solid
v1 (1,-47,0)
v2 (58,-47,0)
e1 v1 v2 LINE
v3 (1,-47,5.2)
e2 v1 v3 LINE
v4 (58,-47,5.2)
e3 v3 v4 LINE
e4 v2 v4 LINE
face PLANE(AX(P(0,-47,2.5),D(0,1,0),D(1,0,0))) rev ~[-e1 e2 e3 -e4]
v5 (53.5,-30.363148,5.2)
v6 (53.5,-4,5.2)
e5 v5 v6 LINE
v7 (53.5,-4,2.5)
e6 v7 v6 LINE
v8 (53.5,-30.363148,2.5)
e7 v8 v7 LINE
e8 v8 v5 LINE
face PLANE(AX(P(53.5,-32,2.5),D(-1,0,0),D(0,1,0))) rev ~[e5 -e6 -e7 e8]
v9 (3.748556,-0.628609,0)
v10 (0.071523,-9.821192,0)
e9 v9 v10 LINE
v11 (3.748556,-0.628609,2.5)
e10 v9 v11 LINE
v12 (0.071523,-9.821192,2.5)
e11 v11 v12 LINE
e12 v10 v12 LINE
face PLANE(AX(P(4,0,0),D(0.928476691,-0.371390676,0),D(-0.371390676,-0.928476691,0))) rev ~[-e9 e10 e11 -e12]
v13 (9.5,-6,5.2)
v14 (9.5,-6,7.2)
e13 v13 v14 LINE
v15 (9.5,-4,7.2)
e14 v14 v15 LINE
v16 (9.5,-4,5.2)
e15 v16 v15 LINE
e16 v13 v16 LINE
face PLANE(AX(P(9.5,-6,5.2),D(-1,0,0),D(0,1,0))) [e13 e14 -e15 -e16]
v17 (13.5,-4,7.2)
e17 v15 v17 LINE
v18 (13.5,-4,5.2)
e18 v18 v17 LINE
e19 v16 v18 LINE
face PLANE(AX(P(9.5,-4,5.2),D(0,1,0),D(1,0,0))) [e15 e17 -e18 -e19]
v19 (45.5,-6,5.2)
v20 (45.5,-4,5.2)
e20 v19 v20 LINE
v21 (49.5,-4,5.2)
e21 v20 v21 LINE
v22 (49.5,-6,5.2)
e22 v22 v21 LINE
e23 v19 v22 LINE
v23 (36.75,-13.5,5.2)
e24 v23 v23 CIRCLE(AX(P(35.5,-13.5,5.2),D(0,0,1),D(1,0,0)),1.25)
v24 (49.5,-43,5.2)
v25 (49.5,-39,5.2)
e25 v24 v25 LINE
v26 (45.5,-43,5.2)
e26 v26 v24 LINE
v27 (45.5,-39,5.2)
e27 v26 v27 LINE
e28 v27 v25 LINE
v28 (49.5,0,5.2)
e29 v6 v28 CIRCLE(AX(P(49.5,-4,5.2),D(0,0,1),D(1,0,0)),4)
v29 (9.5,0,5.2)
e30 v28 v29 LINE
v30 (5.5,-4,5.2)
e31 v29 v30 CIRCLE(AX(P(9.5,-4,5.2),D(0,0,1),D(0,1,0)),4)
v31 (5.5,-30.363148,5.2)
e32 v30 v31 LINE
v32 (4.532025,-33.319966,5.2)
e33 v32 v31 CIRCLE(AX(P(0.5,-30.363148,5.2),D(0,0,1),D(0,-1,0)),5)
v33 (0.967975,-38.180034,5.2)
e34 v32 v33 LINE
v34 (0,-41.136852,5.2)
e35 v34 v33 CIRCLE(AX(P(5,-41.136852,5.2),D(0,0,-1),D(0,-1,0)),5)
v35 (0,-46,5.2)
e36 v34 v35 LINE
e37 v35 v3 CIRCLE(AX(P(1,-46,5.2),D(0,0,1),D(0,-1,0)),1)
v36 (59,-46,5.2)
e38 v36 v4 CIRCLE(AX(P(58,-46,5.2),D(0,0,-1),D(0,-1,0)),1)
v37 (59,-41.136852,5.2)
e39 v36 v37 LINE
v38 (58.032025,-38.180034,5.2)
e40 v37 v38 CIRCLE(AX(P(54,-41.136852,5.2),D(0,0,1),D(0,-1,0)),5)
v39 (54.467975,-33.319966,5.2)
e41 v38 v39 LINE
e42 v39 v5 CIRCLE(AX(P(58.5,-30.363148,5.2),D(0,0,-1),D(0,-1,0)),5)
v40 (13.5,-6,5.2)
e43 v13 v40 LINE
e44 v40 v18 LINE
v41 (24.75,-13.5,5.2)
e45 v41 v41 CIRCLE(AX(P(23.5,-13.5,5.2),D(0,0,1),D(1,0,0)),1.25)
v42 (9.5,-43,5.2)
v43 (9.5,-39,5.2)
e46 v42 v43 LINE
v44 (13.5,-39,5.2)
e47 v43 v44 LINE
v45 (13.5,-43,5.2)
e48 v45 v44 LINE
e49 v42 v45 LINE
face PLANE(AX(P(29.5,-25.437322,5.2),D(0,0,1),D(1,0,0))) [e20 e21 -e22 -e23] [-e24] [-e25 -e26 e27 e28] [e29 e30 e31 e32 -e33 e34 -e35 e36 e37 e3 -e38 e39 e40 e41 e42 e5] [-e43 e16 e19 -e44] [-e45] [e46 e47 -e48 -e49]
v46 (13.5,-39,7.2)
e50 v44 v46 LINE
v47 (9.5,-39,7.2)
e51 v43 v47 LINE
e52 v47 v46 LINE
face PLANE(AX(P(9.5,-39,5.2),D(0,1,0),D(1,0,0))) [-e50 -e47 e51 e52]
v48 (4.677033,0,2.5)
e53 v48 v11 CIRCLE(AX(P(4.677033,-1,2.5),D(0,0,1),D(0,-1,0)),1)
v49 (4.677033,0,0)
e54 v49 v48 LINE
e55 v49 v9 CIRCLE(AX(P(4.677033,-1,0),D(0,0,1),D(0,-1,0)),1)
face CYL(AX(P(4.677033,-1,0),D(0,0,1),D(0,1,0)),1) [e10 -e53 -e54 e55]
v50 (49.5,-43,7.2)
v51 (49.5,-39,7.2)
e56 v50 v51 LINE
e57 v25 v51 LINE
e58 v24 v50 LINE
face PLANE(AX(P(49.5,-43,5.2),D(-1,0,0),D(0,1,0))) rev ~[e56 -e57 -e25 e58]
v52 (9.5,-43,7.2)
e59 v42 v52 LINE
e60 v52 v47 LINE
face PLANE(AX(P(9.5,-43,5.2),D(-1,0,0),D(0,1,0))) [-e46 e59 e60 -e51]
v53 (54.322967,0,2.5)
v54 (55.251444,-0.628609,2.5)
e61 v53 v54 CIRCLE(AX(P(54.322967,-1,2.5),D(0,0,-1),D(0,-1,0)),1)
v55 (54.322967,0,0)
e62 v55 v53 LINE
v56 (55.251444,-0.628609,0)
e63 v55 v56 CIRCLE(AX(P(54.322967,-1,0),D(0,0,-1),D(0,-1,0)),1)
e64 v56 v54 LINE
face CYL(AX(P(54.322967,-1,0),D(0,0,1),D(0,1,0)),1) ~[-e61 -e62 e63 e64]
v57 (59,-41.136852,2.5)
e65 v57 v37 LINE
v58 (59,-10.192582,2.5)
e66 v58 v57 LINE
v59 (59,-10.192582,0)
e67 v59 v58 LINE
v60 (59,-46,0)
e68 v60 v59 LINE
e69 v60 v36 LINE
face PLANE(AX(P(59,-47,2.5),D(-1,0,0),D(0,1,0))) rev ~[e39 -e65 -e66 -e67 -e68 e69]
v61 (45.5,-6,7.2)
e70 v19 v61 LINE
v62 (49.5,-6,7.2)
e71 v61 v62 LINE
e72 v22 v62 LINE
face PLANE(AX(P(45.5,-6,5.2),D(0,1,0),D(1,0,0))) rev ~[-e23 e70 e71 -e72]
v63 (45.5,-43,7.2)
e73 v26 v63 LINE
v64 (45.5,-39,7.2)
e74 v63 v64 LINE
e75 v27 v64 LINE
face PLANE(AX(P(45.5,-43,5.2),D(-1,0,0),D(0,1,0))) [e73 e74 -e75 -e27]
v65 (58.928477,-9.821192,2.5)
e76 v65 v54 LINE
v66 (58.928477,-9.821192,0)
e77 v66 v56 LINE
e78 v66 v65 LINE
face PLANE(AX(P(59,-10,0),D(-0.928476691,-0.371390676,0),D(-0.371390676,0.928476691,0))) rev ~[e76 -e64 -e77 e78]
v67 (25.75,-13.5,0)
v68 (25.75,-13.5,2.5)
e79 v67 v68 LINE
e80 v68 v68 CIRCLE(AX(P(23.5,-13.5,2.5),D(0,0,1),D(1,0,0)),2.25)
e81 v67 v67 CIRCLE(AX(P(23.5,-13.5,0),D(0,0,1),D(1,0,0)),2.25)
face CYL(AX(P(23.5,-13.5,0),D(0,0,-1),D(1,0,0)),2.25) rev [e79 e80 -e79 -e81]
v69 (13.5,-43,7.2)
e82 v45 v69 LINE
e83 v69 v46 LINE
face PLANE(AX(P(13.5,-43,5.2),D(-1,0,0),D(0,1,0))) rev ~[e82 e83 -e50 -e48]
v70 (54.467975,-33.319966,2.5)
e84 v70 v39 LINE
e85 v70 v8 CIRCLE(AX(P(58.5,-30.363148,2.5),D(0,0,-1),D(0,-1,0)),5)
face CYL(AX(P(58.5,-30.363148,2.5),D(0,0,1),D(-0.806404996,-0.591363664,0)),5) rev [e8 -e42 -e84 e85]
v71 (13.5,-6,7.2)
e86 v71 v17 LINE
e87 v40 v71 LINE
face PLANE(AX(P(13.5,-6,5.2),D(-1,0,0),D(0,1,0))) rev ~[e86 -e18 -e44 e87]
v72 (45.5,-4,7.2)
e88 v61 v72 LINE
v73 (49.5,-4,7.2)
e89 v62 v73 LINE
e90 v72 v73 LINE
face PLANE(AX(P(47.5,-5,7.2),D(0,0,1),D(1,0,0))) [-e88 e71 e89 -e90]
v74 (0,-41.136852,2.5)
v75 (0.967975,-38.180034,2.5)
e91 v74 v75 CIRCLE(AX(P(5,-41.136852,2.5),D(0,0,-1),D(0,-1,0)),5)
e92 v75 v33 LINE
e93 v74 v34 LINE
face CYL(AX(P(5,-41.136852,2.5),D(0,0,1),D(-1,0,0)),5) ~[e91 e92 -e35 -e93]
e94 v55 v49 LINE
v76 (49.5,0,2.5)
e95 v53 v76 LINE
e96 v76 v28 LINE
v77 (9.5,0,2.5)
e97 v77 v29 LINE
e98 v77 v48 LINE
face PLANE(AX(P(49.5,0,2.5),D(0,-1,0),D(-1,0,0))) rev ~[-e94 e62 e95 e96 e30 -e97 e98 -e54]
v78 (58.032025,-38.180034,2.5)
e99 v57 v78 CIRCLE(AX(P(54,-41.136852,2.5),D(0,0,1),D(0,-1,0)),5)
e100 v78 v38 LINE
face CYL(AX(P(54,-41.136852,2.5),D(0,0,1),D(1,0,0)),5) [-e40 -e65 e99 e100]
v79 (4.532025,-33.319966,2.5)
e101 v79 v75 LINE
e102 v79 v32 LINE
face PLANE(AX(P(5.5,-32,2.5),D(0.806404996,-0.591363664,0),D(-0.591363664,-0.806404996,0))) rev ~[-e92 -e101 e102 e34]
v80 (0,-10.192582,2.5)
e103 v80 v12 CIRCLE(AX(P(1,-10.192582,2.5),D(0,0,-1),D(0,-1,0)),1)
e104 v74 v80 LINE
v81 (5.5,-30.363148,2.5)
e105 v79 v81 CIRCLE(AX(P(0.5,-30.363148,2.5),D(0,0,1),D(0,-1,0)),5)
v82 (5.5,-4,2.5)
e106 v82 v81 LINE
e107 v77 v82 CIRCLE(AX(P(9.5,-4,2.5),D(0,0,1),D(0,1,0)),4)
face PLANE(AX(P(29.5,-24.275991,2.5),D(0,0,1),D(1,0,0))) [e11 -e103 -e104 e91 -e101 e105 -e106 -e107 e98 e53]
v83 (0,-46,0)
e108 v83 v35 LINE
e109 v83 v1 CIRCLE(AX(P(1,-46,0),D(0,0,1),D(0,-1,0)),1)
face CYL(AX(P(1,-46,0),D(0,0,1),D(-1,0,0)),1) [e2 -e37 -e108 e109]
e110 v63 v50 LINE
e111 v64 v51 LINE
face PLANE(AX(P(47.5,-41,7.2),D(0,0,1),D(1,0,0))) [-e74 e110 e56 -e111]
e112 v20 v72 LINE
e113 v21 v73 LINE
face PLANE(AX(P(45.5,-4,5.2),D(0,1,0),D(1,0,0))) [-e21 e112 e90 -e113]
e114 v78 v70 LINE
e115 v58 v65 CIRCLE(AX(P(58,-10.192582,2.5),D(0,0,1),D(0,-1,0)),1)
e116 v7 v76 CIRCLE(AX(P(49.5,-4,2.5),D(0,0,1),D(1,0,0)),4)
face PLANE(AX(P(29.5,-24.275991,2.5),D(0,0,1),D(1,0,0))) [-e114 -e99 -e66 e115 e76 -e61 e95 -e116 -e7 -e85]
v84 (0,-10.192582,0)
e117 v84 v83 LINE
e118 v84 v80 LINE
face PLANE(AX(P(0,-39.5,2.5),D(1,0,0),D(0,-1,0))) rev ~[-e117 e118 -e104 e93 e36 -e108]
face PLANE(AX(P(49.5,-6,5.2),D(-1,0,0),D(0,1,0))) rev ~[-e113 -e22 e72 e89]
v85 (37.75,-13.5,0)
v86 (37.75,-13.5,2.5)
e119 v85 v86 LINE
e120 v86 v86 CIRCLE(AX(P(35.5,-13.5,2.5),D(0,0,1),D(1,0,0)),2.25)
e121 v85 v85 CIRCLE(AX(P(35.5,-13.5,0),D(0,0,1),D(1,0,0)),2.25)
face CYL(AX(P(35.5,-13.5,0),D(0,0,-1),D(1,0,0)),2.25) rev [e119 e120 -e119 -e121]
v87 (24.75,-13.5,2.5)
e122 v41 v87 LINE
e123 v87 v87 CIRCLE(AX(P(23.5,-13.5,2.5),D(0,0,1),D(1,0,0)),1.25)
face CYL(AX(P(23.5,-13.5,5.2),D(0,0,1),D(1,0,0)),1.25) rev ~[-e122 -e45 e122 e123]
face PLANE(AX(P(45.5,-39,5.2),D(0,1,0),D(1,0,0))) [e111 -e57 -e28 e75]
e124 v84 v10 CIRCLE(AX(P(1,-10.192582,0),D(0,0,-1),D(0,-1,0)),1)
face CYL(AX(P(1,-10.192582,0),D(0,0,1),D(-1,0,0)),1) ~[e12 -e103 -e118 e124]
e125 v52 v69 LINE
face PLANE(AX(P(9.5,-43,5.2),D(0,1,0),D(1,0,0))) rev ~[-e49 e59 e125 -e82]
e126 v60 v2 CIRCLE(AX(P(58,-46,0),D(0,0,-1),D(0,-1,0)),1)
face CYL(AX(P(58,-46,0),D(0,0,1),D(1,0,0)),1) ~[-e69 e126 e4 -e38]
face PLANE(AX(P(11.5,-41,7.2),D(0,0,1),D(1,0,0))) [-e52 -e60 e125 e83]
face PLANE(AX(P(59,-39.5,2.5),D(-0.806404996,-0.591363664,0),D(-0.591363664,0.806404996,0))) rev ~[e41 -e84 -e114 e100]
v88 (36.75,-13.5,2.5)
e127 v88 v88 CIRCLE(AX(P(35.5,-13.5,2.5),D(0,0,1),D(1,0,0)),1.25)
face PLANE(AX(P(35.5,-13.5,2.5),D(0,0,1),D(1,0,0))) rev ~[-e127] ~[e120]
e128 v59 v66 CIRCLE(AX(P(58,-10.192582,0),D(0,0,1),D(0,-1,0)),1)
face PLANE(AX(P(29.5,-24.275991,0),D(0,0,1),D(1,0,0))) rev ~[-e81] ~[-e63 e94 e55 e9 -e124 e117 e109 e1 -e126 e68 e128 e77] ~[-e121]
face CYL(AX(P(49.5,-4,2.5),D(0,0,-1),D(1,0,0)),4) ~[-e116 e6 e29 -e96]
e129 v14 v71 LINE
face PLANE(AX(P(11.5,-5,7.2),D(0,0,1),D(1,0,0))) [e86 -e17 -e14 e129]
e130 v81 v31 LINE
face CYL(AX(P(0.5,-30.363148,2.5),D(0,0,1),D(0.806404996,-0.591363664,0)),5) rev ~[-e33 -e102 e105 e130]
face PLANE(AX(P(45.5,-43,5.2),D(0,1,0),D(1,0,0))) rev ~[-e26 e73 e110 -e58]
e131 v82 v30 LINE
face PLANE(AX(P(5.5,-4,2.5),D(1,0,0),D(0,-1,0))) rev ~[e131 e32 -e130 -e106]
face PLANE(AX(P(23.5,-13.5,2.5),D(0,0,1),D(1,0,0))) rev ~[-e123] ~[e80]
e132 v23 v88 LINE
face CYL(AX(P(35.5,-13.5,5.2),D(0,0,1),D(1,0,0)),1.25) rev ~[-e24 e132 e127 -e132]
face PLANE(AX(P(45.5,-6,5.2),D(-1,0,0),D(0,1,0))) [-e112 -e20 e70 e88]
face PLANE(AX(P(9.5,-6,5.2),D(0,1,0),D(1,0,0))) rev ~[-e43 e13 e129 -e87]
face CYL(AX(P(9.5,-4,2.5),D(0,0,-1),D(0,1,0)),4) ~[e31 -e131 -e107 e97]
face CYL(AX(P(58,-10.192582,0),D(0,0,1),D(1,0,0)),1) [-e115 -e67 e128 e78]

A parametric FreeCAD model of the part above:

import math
import FreeCAD as App
import Part
import Sketcher

V = App.Vector
Q = App.Units.Quantity


def edges_at(feature, points):
    """Names of the edges that pass closest to the given points."""
    edges = feature.Shape.Edges
    near = lambda p: min(range(len(edges)), key=lambda i: edges[i].distToShape(Part.Vertex(*p))[0])
    return sorted({f"Edge{near(p) + 1}" for p in points})


def add_polygon(sketch, points):
    """Adds a closed chain of lines whose ends are joined by coincident constraints."""
    first, n = sketch.GeometryCount, len(points)
    for a, b in zip(points, points[1:] + points[:1]):
        sketch.addGeometry(Part.LineSegment(App.Vector(*a, 0), App.Vector(*b, 0)), False)
    for i in range(n):
        sketch.addConstraint(Sketcher.Constraint("Coincident", first + i, 2, first + (i + 1) % n, 1))

doc = App.newDocument("Part")
body = doc.addObject("PartDesign::Body", "Body")

# Sketch on XY plane
sketch1 = doc.addObject("Sketcher::SketchObject", "Sketch")
body.addObject(sketch1)
sketch1.AttachmentSupport = (doc.XY_Plane, [""])
sketch1.MapMode = "FlatFace"
add_polygon(sketch1, [(55, 0), (4, 0), (0, -10), (0, -47), (59, -47), (59, -10)])  # lines 0-5
sketch1.addConstraint([
    Sketcher.Constraint("Horizontal", 0),
    Sketcher.Constraint("Vertical", 2),
    Sketcher.Constraint("Horizontal", 3),
    Sketcher.Constraint("Vertical", 4),
    Sketcher.Constraint("PointOnObject", 0, 2, -1),
    Sketcher.Constraint("PointOnObject", 1, 2, -2),
    Sketcher.Constraint("Horizontal", 1, 2, 4, 2),
    Sketcher.Constraint("Equal", 1, 5),
    Sketcher.Constraint("DistanceX", 0, 2, 0, 1, Q("51 mm")),
    Sketcher.Constraint("DistanceX", 3, 1, 3, 2, Q("59 mm")),
    Sketcher.Constraint("DistanceY", 2, 2, 2, 1, Q("37 mm")),
    Sketcher.Constraint("DistanceY", 1, 2, -1, 1, Q("10 mm")),
])
pad1 = doc.addObject("PartDesign::Pad", "Pad")
body.addObject(pad1)
pad1.Profile = sketch1
pad1.Length = 2.5

# Sketch on XY plane
sketch2 = doc.addObject("Sketcher::SketchObject", "Sketch001")
body.addObject(sketch2)
sketch2.AttachmentSupport = (doc.XY_Plane, [""])
sketch2.MapMode = "FlatFace"
sketch2.AttachmentOffset = App.Placement(V(0, 0, 2.5), App.Rotation())
sketch2.addGeometry([
    Part.LineSegment(V(0, -39.5, 0), V(0, -47, 0)),  # 0
    Part.LineSegment(V(0, -47, 0), V(59, -47, 0)),  # 1
    Part.LineSegment(V(59, -47, 0), V(59, -39.5, 0)),  # 2
    Part.LineSegment(V(59, -39.5, 0), V(53.5, -32, 0)),  # 3
    Part.LineSegment(V(53.5, -32, 0), V(53.5, -4, 0)),  # 4
    Part.ArcOfCircle(Part.Circle(V(49.5, -4, 0), V(0, 0, 1), 4), math.radians(0), math.radians(90)),  # 5
    Part.LineSegment(V(49.5, 0, 0), V(9.5, 0, 0)),  # 6
    Part.ArcOfCircle(Part.Circle(V(9.5, -4, 0), V(0, 0, 1), 4), math.radians(90), math.radians(180)),  # 7
    Part.LineSegment(V(5.5, -4, 0), V(5.5, -32, 0)),  # 8
    Part.LineSegment(V(5.5, -32, 0), V(0, -39.5, 0)),  # 9
], False)
sketch2.addConstraint([
    Sketcher.Constraint("Coincident", 0, 2, 1, 1),
    Sketcher.Constraint("Coincident", 1, 2, 2, 1),
    Sketcher.Constraint("Coincident", 2, 2, 3, 1),
    Sketcher.Constraint("Coincident", 3, 2, 4, 1),
    Sketcher.Constraint("Tangent", 4, 2, 5, 1),
    Sketcher.Constraint("Tangent", 5, 2, 6, 1),
    Sketcher.Constraint("Tangent", 6, 2, 7, 1),
    Sketcher.Constraint("Tangent", 7, 2, 8, 1),
    Sketcher.Constraint("Coincident", 8, 2, 9, 1),
    Sketcher.Constraint("Coincident", 9, 2, 0, 1),
    Sketcher.Constraint("Vertical", 0),
    Sketcher.Constraint("Horizontal", 1),
    Sketcher.Constraint("Vertical", 2),
    Sketcher.Constraint("Vertical", 4),
    Sketcher.Constraint("Horizontal", 6),
    Sketcher.Constraint("Vertical", 8),
    Sketcher.Constraint("Equal", 5, 7),
    Sketcher.Constraint("PointOnObject", 0, 2, -2),
    Sketcher.Constraint("PointOnObject", 5, 2, -1),
    Sketcher.Constraint("Horizontal", 3, 2, 8, 2),
    Sketcher.Constraint("Horizontal", 2, 2, 9, 2),
    Sketcher.Constraint("Equal", 3, 9),
    Sketcher.Constraint("Radius", 5, Q("4 mm")),
    Sketcher.Constraint("DistanceX", 1, 1, 1, 2, Q("59 mm")),
    Sketcher.Constraint("DistanceX", 6, 2, 6, 1, Q("40 mm")),
    Sketcher.Constraint("DistanceY", 4, 1, 4, 2, Q("28 mm")),
    Sketcher.Constraint("DistanceY", 0, 2, 0, 1, Q("7.5 mm")),
    Sketcher.Constraint("DistanceY", 0, 2, -1, 1, Q("47 mm")),
])
pad2 = doc.addObject("PartDesign::Pad", "Pad001")
body.addObject(pad2)
pad2.Profile = sketch2
pad2.Length = 2.7
doc.recompute()

fillet = doc.addObject("PartDesign::Fillet", "Fillet")
body.addObject(fillet)
fillet.Base = (pad2, edges_at(pad2, [
    (0, -47, 2.6),
    (59, -47, 2.6),
    (4, 0, 1.25),
    (55, 0, 1.25),
    (59, -10, 1.25),
    (0, -10, 1.25),
]))
fillet.Radius = 1
doc.recompute()

fillet2 = doc.addObject("PartDesign::Fillet", "Fillet001")
body.addObject(fillet2)
fillet2.Base = (fillet, edges_at(fillet, [
    (0, -39.5, 3.85),
    (59, -39.5, 3.85),
    (53.5, -32, 3.85),
    (5.5, -32, 3.85),
]))
fillet2.Radius = 5

# Sketch on XY plane
sketch3 = doc.addObject("Sketcher::SketchObject", "Sketch002")
body.addObject(sketch3)
sketch3.AttachmentSupport = (doc.XY_Plane, [""])
sketch3.MapMode = "FlatFace"
sketch3.AttachmentOffset = App.Placement(V(0, 0, 5.2), App.Rotation())
add_polygon(sketch3, [(9.5, -4), (9.5, -6), (13.5, -6), (13.5, -4)])  # lines 0-3
add_polygon(sketch3, [(9.5, -39), (9.5, -43), (13.5, -43), (13.5, -39)])  # lines 4-7
add_polygon(sketch3, [(45.5, -4), (45.5, -6), (49.5, -6), (49.5, -4)])  # lines 8-11
add_polygon(sketch3, [(45.5, -39), (45.5, -43), (49.5, -43), (49.5, -39)])  # lines 12-15
sketch3.addConstraint([
    Sketcher.Constraint("Vertical", 0),
    Sketcher.Constraint("Horizontal", 1),
    Sketcher.Constraint("Vertical", 2),
    Sketcher.Constraint("Horizontal", 3),
    Sketcher.Constraint("Vertical", 4),
    Sketcher.Constraint("Horizontal", 5),
    Sketcher.Constraint("Vertical", 6),
    Sketcher.Constraint("Horizontal", 7),
    Sketcher.Constraint("Vertical", 8),
    Sketcher.Constraint("Horizontal", 9),
    Sketcher.Constraint("Vertical", 10),
    Sketcher.Constraint("Horizontal", 11),
    Sketcher.Constraint("Vertical", 12),
    Sketcher.Constraint("Horizontal", 13),
    Sketcher.Constraint("Vertical", 14),
    Sketcher.Constraint("Horizontal", 15),
    Sketcher.Constraint("Horizontal", 1, 2, 8, 2),
    Sketcher.Constraint("Horizontal", 3, 2, 10, 2),
    Sketcher.Constraint("Horizontal", 5, 2, 12, 2),
    Sketcher.Constraint("Horizontal", 7, 2, 14, 2),
    Sketcher.Constraint("Vertical", 3, 2, 4, 2),
    Sketcher.Constraint("Vertical", 2, 2, 5, 2),
    Sketcher.Constraint("Vertical", 11, 2, 12, 2),
    Sketcher.Constraint("Vertical", 10, 2, 13, 2),
    Sketcher.Constraint("Equal", 7, 9),
    Sketcher.Constraint("Equal", 15, 4),
    Sketcher.Constraint("DistanceX", 1, 1, 1, 2, Q("4 mm")),
    Sketcher.Constraint("DistanceY", 0, 2, 0, 1, Q("2 mm")),
    Sketcher.Constraint("DistanceY", 0, 2, -1, 1, Q("6 mm")),
    Sketcher.Constraint("DistanceY", 4, 2, -1, 1, Q("43 mm")),
    Sketcher.Constraint("DistanceX", 1, 2, 8, 2, Q("32 mm")),
    Sketcher.Constraint("DistanceX", -1, 1, 0, 2, Q("9.5 mm")),
])
pad3 = doc.addObject("PartDesign::Pad", "Pad002")
body.addObject(pad3)
pad3.Profile = sketch3
pad3.Length = 2

# Sketch on XY plane
sketch4 = doc.addObject("Sketcher::SketchObject", "Sketch003")
body.addObject(sketch4)
sketch4.AttachmentSupport = (doc.XY_Plane, [""])
sketch4.MapMode = "FlatFace"
sketch4.AttachmentOffset = App.Placement(V(0, 0, 5.2), App.Rotation())
sketch4.addGeometry([
    Part.Circle(V(23.5, -13.5, 0), V(0, 0, 1), 1.2),
    Part.Circle(V(35.5, -13.5, 0), V(0, 0, 1), 1.2),
], False)
sketch4.addConstraint([
    Sketcher.Constraint("Equal", 0, 1),
    Sketcher.Constraint("Horizontal", 0, 3, 1, 3),
    Sketcher.Constraint("Diameter", 0, Q("2.5 mm")),
    Sketcher.Constraint("DistanceX", 0, 3, 1, 3, Q("12 mm")),
    Sketcher.Constraint("DistanceX", -1, 1, 0, 3, Q("23.5 mm")),
    Sketcher.Constraint("DistanceY", 0, 3, -1, 1, Q("13.5 mm")),
])
pocket1 = doc.addObject("PartDesign::Pocket", "Pocket")
body.addObject(pocket1)
pocket1.Profile = sketch4
pocket1.Length = 6

# Sketch on XY plane
sketch5 = doc.addObject("Sketcher::SketchObject", "Sketch004")
body.addObject(sketch5)
sketch5.AttachmentSupport = (doc.XY_Plane, [""])
sketch5.MapMode = "FlatFace"
sketch5.addGeometry([
    Part.Circle(V(35.5, -13.5, 0), V(0, 0, 1), 2.2),
    Part.Circle(V(23.5, -13.5, 0), V(0, 0, 1), 2.2),
], False)
sketch5.addConstraint([
    Sketcher.Constraint("Equal", 0, 1),
    Sketcher.Constraint("Horizontal", 0, 3, 1, 3),
    Sketcher.Constraint("Diameter", 0, Q("4.5 mm")),
    Sketcher.Constraint("DistanceX", 1, 3, 0, 3, Q("12 mm")),
    Sketcher.Constraint("DistanceX", -1, 1, 0, 3, Q("35.5 mm")),
    Sketcher.Constraint("DistanceY", 0, 3, -1, 1, Q("13.5 mm")),
])
pocket2 = doc.addObject("PartDesign::Pocket", "Pocket001")
body.addObject(pocket2)
pocket2.Profile = sketch5
pocket2.Length = 2.5
pocket2.Reversed = True

doc.recompute()
